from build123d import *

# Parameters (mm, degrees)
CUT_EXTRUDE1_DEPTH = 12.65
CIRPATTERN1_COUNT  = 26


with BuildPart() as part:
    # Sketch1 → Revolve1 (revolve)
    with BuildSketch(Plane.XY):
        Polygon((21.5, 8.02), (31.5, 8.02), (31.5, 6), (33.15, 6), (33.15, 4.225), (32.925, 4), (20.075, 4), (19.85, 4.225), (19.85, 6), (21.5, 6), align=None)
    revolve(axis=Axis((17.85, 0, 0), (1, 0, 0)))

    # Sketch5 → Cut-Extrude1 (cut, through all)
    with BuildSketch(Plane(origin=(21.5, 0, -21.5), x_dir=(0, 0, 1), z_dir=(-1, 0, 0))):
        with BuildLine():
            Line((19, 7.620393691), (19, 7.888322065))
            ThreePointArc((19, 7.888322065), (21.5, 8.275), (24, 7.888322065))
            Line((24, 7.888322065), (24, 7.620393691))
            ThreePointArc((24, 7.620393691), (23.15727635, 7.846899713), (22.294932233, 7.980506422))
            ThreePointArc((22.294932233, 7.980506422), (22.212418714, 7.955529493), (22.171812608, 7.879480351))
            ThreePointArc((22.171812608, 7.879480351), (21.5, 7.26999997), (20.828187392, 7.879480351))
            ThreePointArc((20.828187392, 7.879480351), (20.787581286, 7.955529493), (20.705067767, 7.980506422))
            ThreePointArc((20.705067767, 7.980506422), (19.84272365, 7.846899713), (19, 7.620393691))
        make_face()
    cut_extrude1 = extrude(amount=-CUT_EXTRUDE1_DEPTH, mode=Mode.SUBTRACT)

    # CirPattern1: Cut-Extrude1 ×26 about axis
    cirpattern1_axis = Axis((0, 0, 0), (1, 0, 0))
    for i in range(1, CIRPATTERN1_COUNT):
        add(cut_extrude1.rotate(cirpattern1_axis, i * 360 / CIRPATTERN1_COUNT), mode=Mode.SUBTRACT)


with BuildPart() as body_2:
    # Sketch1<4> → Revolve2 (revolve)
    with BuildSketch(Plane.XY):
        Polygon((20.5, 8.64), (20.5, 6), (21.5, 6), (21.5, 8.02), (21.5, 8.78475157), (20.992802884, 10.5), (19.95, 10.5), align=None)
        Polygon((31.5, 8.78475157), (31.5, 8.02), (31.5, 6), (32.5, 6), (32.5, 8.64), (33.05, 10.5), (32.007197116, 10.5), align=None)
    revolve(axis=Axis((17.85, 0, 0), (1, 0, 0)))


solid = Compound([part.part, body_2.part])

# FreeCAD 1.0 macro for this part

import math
import FreeCAD as App
import Part
import Sketcher
Q = App.Units.Quantity

doc = App.newDocument("Part")
body = doc.addObject("PartDesign::Body", "Body")

# Sketch on XY plane
sketch1 = body.newObject("Sketcher::SketchObject", "Sketch")
sketch1.AttachmentSupport = (doc.getObject("XY_Plane"), [""])
sketch1.MapMode = "FlatFace"
sketch1.addGeometry(Part.LineSegment(App.Vector(31.5, 8.02, 0), App.Vector(21.5, 8.02, 0)), False)
sketch1.addGeometry(Part.LineSegment(App.Vector(21.5, 8.02, 0), App.Vector(21.5, 6, 0)), False)
sketch1.addGeometry(Part.LineSegment(App.Vector(21.5, 6, 0), App.Vector(19.85, 6, 0)), False)
sketch1.addGeometry(Part.LineSegment(App.Vector(19.85, 6, 0), App.Vector(19.85, 4.22, 0)), False)
sketch1.addGeometry(Part.LineSegment(App.Vector(19.85, 4.22, 0), App.Vector(20.07, 4, 0)), False)
sketch1.addGeometry(Part.LineSegment(App.Vector(20.07, 4, 0), App.Vector(32.92, 4, 0)), False)
sketch1.addGeometry(Part.LineSegment(App.Vector(32.92, 4, 0), App.Vector(33.15, 4.22, 0)), False)
sketch1.addGeometry(Part.LineSegment(App.Vector(33.15, 4.22, 0), App.Vector(33.15, 6, 0)), False)
sketch1.addGeometry(Part.LineSegment(App.Vector(33.15, 6, 0), App.Vector(31.5, 6, 0)), False)
sketch1.addGeometry(Part.LineSegment(App.Vector(31.5, 6, 0), App.Vector(31.5, 8.02, 0)), False)
sketch1.addConstraint(Sketcher.Constraint("Coincident", 0, 2, 1, 1))
sketch1.addConstraint(Sketcher.Constraint("Coincident", 1, 2, 2, 1))
sketch1.addConstraint(Sketcher.Constraint("Coincident", 2, 2, 3, 1))
sketch1.addConstraint(Sketcher.Constraint("Coincident", 3, 2, 4, 1))
sketch1.addConstraint(Sketcher.Constraint("Coincident", 4, 2, 5, 1))
sketch1.addConstraint(Sketcher.Constraint("Coincident", 5, 2, 6, 1))
sketch1.addConstraint(Sketcher.Constraint("Coincident", 6, 2, 7, 1))
sketch1.addConstraint(Sketcher.Constraint("Coincident", 7, 2, 8, 1))
sketch1.addConstraint(Sketcher.Constraint("Coincident", 8, 2, 9, 1))
sketch1.addConstraint(Sketcher.Constraint("Coincident", 9, 2, 0, 1))
sketch1.addConstraint(Sketcher.Constraint("Horizontal", 0))
sketch1.addConstraint(Sketcher.Constraint("Vertical", 1))
sketch1.addConstraint(Sketcher.Constraint("Horizontal", 2))
sketch1.addConstraint(Sketcher.Constraint("Vertical", 3))
sketch1.addConstraint(Sketcher.Constraint("Horizontal", 5))
sketch1.addConstraint(Sketcher.Constraint("Vertical", 7))
sketch1.addConstraint(Sketcher.Constraint("Horizontal", 8))
sketch1.addConstraint(Sketcher.Constraint("Vertical", 9))
sketch1.addConstraint(Sketcher.Constraint("Perpendicular", 4, 6))
sketch1.addConstraint(Sketcher.Constraint("Horizontal", 3, 2, 6, 2))
sketch1.addConstraint(Sketcher.Constraint("Horizontal", 2, 2, 7, 2))
sketch1.addConstraint(Sketcher.Constraint("Equal", 2, 8))
sketch1.addConstraint(Sketcher.Constraint("Equal", 4, 6))
sketch1.addConstraint(Sketcher.Constraint("DistanceX", 0, 2, 0, 1, Q("10 mm")))
sketch1.addConstraint(Sketcher.Constraint("DistanceY", -1, 1, 1, 2, Q("6 mm")))
sketch1.addConstraint(Sketcher.Constraint("DistanceY", -1, 1, 4, 2, Q("4 mm")))
sketch1.addConstraint(Sketcher.Constraint("DistanceX", 2, 2, 2, 1, Q("1.65 mm")))
sketch1.addConstraint(Sketcher.Constraint("DistanceX", 5, 1, 5, 2, Q("12.85 mm")))
sketch1.addConstraint(Sketcher.Constraint("DistanceY", 1, 2, 1, 1, Q("2.02 mm")))
sketch1.addConstraint(Sketcher.Constraint("DistanceX", -1, 1, 0, 2, Q("21.5 mm")))
revolution = body.newObject("PartDesign::Revolution", "Revolution")
revolution.Profile = sketch1
revolution.ReferenceAxis = (sketch1, ["H_Axis"])
revolution.Angle = 360

# Sketch on YZ plane
sketch2 = body.newObject("Sketcher::SketchObject", "Sketch001")
sketch2.AttachmentSupport = (doc.getObject("YZ_Plane"), [""])
sketch2.MapMode = "FlatFace"
sketch2.AttachmentOffset = App.Placement(App.Vector(0, 0, 21.5), App.Rotation())
sketch2.addGeometry(Part.LineSegment(App.Vector(7.89, -2.5, 0), App.Vector(7.62, -2.5, 0)), False)
sketch2.addGeometry(Part.ArcOfCircle(Part.Circle(App.Vector(0, 0, 0), App.Vector(0, 0, 1), 8.02), math.radians(-18.16), math.radians(-5.69)), False)
sketch2.addGeometry(Part.ArcOfCircle(Part.Circle(App.Vector(7.87, -0.78, 0), App.Vector(0, 0, 1), 0.11), math.radians(-6), math.radians(84)), False)
sketch2.addGeometry(Part.ArcOfCircle(Part.Circle(App.Vector(7.94, 0, 0), App.Vector(0, 0, 1), 0.68), math.radians(96), math.radians(264)), False)
sketch2.addGeometry(Part.ArcOfCircle(Part.Circle(App.Vector(7.87, 0.78, 0), App.Vector(0, 0, 1), 0.11), math.radians(-84), math.radians(6)), False)
sketch2.addGeometry(Part.ArcOfCircle(Part.Circle(App.Vector(0, 0, 0), App.Vector(0, 0, 1), 8.02), math.radians(5.69), math.radians(18.16)), False)
sketch2.addGeometry(Part.LineSegment(App.Vector(7.62, 2.5, 0), App.Vector(7.89, 2.5, 0)), False)
sketch2.addGeometry(Part.ArcOfCircle(Part.Circle(App.Vector(0, 0, 0), App.Vector(0, 0, 1), 8.28), math.radians(-18), math.radians(18)), False)
sketch2.addConstraint(Sketcher.Constraint("Coincident", 0, 2, 1, 1))
sketch2.addConstraint(Sketcher.Constraint("Tangent", 1, 2, 2, 1))
sketch2.addConstraint(Sketcher.Constraint("Tangent", 2, 2, 3, 2))
sketch2.addConstraint(Sketcher.Constraint("Tangent", 3, 1, 4, 1))
sketch2.addConstraint(Sketcher.Constraint("Tangent", 4, 2, 5, 1))
sketch2.addConstraint(Sketcher.Constraint("Coincident", 5, 2, 6, 1))
sketch2.addConstraint(Sketcher.Constraint("Coincident", 6, 2, 7, 2))
sketch2.addConstraint(Sketcher.Constraint("Coincident", 7, 1, 0, 1))
sketch2.addConstraint(Sketcher.Constraint("Horizontal", 0))
sketch2.addConstraint(Sketcher.Constraint("Horizontal", 6))
sketch2.addConstraint(Sketcher.Constraint("Coincident", 1, 3, -1, 1))
sketch2.addConstraint(Sketcher.Constraint("Coincident", 5, 3, -1, 1))
sketch2.addConstraint(Sketcher.Constraint("Coincident", 7, 3, -1, 1))
sketch2.addConstraint(Sketcher.Constraint("Equal", 2, 4))
sketch2.addConstraint(Sketcher.Constraint("Equal", 1, 5))
sketch2.addConstraint(Sketcher.Constraint("PointOnObject", 3, 3, -1))
sketch2.addConstraint(Sketcher.Constraint("Vertical", 0, 2, 5, 2))
sketch2.addConstraint(Sketcher.Constraint("Radius", 1, Q("8.02 mm")))
sketch2.addConstraint(Sketcher.Constraint("Radius", 3, Q("0.675 mm")))
sketch2.addConstraint(Sketcher.Constraint("Radius", 7, Q("8.275 mm")))
sketch2.addConstraint(Sketcher.Constraint("DistanceY", 0, 2, -1, 1, Q("2.5 mm")))
sketch2.addConstraint(Sketcher.Constraint("Radius", 2, Q("0.1125 mm")))
sketch2.addConstraint(Sketcher.Constraint("DistanceX", -1, 1, 3, 3, Q("7.945 mm")))
pocket1 = body.newObject("PartDesign::Pocket", "Pocket")
pocket1.Profile = sketch2
pocket1.Type = "ThroughAll"
pocket1.Reversed = True
doc.recompute()

polarpattern = body.newObject("PartDesign::PolarPattern", "PolarPattern")
polarpattern.Originals = [pocket1]
polarpattern.Axis = (doc.getObject("X_Axis"), [""])
polarpattern.Angle = 360
polarpattern.Occurrences = 26
body.Tip = polarpattern
body2 = doc.addObject("PartDesign::Body", "Body001")
body2.AllowCompound = True

# Sketch on XY plane
sketch3 = body2.newObject("Sketcher::SketchObject", "Sketch002")
sketch3.AttachmentSupport = (doc.getObject("XY_Plane001"), [""])
sketch3.MapMode = "FlatFace"
sketch3.addGeometry(Part.LineSegment(App.Vector(20.5, 8.6, 0), App.Vector(20.5, 6, 0)), False)
sketch3.addGeometry(Part.LineSegment(App.Vector(20.5, 6, 0), App.Vector(21.5, 6, 0)), False)
sketch3.addGeometry(Part.LineSegment(App.Vector(21.5, 6, 0), App.Vector(21.5, 8.8, 0)), False)
sketch3.addGeometry(Part.LineSegment(App.Vector(21.5, 8.8, 0), App.Vector(21, 10.5, 0)), False)
sketch3.addGeometry(Part.LineSegment(App.Vector(21, 10.5, 0), App.Vector(19.9, 10.5, 0)), False)
sketch3.addGeometry(Part.LineSegment(App.Vector(19.9, 10.5, 0), App.Vector(20.5, 8.6, 0)), False)
sketch3.addGeometry(Part.LineSegment(App.Vector(31.5, 8.8, 0), App.Vector(31.5, 6, 0)), False)
sketch3.addGeometry(Part.LineSegment(App.Vector(31.5, 6, 0), App.Vector(32.5, 6, 0)), False)
sketch3.addGeometry(Part.LineSegment(App.Vector(32.5, 6, 0), App.Vector(32.5, 8.6, 0)), False)
sketch3.addGeometry(Part.LineSegment(App.Vector(32.5, 8.6, 0), App.Vector(33, 10.5, 0)), False)
sketch3.addGeometry(Part.LineSegment(App.Vector(33, 10.5, 0), App.Vector(32, 10.5, 0)), False)
sketch3.addGeometry(Part.LineSegment(App.Vector(32, 10.5, 0), App.Vector(31.5, 8.8, 0)), False)
sketch3.addConstraint(Sketcher.Constraint("Coincident", 0, 2, 1, 1))
sketch3.addConstraint(Sketcher.Constraint("Coincident", 1, 2, 2, 1))
sketch3.addConstraint(Sketcher.Constraint("Coincident", 2, 2, 3, 1))
sketch3.addConstraint(Sketcher.Constraint("Coincident", 3, 2, 4, 1))
sketch3.addConstraint(Sketcher.Constraint("Coincident", 4, 2, 5, 1))
sketch3.addConstraint(Sketcher.Constraint("Coincident", 5, 2, 0, 1))
sketch3.addConstraint(Sketcher.Constraint("Coincident", 6, 2, 7, 1))
sketch3.addConstraint(Sketcher.Constraint("Coincident", 7, 2, 8, 1))
sketch3.addConstraint(Sketcher.Constraint("Coincident", 8, 2, 9, 1))
sketch3.addConstraint(Sketcher.Constraint("Coincident", 9, 2, 10, 1))
sketch3.addConstraint(Sketcher.Constraint("Coincident", 10, 2, 11, 1))
sketch3.addConstraint(Sketcher.Constraint("Coincident", 11, 2, 6, 1))
sketch3.addConstraint(Sketcher.Constraint("Vertical", 0))
sketch3.addConstraint(Sketcher.Constraint("Horizontal", 1))
sketch3.addConstraint(Sketcher.Constraint("Vertical", 2))
sketch3.addConstraint(Sketcher.Constraint("Horizontal", 4))
sketch3.addConstraint(Sketcher.Constraint("Vertical", 6))
sketch3.addConstraint(Sketcher.Constraint("Horizontal", 7))
sketch3.addConstraint(Sketcher.Constraint("Vertical", 8))
sketch3.addConstraint(Sketcher.Constraint("Horizontal", 10))
sketch3.addConstraint(Sketcher.Constraint("Parallel", 3, 5))
sketch3.addConstraint(Sketcher.Constraint("Parallel", 9, 11))
sketch3.addConstraint(Sketcher.Constraint("Horizontal", 1, 2, 6, 2))
sketch3.addConstraint(Sketcher.Constraint("Horizontal", 5, 2, 8, 2))
sketch3.addConstraint(Sketcher.Constraint("Horizontal", 4, 2, 9, 2))
sketch3.addConstraint(Sketcher.Constraint("Horizontal", 2, 2, 11, 2))
sketch3.addConstraint(Sketcher.Constraint("Equal", 1, 7))
sketch3.addConstraint(Sketcher.Constraint("Equal", 4, 10))
sketch3.addConstraint(Sketcher.Constraint("DistanceX", 1, 1, 1, 2, Q("1 mm")))
sketch3.addConstraint(Sketcher.Constraint("DistanceY", -1, 1, 0, 2, Q("6 mm")))
sketch3.addConstraint(Sketcher.Constraint("DistanceX", 1, 2, 6, 2, Q("10 mm")))
sketch3.addConstraint(Sketcher.Constraint("DistanceY", 0, 2, 0, 1, Q("2.64 mm")))
sketch3.addConstraint(Sketcher.Constraint("DistanceX", -1, 1, 0, 2, Q("20.5 mm")))
sketch3.addConstraint(Sketcher.Constraint("DistanceY", -1, 1, 3, 2, Q("10.5 mm")))
sketch3.addConstraint(Sketcher.Constraint("DistanceX", -1, 1, 4, 2, Q("19.95 mm")))
sketch3.addConstraint(Sketcher.Constraint("DistanceY", 2, 1, 2, 2, Q("2.784752 mm")))
revolution2 = body2.newObject("PartDesign::Revolution", "Revolution001")
revolution2.Profile = sketch3
revolution2.ReferenceAxis = (sketch3, ["H_Axis"])
revolution2.Angle = 360

doc.recompute()
